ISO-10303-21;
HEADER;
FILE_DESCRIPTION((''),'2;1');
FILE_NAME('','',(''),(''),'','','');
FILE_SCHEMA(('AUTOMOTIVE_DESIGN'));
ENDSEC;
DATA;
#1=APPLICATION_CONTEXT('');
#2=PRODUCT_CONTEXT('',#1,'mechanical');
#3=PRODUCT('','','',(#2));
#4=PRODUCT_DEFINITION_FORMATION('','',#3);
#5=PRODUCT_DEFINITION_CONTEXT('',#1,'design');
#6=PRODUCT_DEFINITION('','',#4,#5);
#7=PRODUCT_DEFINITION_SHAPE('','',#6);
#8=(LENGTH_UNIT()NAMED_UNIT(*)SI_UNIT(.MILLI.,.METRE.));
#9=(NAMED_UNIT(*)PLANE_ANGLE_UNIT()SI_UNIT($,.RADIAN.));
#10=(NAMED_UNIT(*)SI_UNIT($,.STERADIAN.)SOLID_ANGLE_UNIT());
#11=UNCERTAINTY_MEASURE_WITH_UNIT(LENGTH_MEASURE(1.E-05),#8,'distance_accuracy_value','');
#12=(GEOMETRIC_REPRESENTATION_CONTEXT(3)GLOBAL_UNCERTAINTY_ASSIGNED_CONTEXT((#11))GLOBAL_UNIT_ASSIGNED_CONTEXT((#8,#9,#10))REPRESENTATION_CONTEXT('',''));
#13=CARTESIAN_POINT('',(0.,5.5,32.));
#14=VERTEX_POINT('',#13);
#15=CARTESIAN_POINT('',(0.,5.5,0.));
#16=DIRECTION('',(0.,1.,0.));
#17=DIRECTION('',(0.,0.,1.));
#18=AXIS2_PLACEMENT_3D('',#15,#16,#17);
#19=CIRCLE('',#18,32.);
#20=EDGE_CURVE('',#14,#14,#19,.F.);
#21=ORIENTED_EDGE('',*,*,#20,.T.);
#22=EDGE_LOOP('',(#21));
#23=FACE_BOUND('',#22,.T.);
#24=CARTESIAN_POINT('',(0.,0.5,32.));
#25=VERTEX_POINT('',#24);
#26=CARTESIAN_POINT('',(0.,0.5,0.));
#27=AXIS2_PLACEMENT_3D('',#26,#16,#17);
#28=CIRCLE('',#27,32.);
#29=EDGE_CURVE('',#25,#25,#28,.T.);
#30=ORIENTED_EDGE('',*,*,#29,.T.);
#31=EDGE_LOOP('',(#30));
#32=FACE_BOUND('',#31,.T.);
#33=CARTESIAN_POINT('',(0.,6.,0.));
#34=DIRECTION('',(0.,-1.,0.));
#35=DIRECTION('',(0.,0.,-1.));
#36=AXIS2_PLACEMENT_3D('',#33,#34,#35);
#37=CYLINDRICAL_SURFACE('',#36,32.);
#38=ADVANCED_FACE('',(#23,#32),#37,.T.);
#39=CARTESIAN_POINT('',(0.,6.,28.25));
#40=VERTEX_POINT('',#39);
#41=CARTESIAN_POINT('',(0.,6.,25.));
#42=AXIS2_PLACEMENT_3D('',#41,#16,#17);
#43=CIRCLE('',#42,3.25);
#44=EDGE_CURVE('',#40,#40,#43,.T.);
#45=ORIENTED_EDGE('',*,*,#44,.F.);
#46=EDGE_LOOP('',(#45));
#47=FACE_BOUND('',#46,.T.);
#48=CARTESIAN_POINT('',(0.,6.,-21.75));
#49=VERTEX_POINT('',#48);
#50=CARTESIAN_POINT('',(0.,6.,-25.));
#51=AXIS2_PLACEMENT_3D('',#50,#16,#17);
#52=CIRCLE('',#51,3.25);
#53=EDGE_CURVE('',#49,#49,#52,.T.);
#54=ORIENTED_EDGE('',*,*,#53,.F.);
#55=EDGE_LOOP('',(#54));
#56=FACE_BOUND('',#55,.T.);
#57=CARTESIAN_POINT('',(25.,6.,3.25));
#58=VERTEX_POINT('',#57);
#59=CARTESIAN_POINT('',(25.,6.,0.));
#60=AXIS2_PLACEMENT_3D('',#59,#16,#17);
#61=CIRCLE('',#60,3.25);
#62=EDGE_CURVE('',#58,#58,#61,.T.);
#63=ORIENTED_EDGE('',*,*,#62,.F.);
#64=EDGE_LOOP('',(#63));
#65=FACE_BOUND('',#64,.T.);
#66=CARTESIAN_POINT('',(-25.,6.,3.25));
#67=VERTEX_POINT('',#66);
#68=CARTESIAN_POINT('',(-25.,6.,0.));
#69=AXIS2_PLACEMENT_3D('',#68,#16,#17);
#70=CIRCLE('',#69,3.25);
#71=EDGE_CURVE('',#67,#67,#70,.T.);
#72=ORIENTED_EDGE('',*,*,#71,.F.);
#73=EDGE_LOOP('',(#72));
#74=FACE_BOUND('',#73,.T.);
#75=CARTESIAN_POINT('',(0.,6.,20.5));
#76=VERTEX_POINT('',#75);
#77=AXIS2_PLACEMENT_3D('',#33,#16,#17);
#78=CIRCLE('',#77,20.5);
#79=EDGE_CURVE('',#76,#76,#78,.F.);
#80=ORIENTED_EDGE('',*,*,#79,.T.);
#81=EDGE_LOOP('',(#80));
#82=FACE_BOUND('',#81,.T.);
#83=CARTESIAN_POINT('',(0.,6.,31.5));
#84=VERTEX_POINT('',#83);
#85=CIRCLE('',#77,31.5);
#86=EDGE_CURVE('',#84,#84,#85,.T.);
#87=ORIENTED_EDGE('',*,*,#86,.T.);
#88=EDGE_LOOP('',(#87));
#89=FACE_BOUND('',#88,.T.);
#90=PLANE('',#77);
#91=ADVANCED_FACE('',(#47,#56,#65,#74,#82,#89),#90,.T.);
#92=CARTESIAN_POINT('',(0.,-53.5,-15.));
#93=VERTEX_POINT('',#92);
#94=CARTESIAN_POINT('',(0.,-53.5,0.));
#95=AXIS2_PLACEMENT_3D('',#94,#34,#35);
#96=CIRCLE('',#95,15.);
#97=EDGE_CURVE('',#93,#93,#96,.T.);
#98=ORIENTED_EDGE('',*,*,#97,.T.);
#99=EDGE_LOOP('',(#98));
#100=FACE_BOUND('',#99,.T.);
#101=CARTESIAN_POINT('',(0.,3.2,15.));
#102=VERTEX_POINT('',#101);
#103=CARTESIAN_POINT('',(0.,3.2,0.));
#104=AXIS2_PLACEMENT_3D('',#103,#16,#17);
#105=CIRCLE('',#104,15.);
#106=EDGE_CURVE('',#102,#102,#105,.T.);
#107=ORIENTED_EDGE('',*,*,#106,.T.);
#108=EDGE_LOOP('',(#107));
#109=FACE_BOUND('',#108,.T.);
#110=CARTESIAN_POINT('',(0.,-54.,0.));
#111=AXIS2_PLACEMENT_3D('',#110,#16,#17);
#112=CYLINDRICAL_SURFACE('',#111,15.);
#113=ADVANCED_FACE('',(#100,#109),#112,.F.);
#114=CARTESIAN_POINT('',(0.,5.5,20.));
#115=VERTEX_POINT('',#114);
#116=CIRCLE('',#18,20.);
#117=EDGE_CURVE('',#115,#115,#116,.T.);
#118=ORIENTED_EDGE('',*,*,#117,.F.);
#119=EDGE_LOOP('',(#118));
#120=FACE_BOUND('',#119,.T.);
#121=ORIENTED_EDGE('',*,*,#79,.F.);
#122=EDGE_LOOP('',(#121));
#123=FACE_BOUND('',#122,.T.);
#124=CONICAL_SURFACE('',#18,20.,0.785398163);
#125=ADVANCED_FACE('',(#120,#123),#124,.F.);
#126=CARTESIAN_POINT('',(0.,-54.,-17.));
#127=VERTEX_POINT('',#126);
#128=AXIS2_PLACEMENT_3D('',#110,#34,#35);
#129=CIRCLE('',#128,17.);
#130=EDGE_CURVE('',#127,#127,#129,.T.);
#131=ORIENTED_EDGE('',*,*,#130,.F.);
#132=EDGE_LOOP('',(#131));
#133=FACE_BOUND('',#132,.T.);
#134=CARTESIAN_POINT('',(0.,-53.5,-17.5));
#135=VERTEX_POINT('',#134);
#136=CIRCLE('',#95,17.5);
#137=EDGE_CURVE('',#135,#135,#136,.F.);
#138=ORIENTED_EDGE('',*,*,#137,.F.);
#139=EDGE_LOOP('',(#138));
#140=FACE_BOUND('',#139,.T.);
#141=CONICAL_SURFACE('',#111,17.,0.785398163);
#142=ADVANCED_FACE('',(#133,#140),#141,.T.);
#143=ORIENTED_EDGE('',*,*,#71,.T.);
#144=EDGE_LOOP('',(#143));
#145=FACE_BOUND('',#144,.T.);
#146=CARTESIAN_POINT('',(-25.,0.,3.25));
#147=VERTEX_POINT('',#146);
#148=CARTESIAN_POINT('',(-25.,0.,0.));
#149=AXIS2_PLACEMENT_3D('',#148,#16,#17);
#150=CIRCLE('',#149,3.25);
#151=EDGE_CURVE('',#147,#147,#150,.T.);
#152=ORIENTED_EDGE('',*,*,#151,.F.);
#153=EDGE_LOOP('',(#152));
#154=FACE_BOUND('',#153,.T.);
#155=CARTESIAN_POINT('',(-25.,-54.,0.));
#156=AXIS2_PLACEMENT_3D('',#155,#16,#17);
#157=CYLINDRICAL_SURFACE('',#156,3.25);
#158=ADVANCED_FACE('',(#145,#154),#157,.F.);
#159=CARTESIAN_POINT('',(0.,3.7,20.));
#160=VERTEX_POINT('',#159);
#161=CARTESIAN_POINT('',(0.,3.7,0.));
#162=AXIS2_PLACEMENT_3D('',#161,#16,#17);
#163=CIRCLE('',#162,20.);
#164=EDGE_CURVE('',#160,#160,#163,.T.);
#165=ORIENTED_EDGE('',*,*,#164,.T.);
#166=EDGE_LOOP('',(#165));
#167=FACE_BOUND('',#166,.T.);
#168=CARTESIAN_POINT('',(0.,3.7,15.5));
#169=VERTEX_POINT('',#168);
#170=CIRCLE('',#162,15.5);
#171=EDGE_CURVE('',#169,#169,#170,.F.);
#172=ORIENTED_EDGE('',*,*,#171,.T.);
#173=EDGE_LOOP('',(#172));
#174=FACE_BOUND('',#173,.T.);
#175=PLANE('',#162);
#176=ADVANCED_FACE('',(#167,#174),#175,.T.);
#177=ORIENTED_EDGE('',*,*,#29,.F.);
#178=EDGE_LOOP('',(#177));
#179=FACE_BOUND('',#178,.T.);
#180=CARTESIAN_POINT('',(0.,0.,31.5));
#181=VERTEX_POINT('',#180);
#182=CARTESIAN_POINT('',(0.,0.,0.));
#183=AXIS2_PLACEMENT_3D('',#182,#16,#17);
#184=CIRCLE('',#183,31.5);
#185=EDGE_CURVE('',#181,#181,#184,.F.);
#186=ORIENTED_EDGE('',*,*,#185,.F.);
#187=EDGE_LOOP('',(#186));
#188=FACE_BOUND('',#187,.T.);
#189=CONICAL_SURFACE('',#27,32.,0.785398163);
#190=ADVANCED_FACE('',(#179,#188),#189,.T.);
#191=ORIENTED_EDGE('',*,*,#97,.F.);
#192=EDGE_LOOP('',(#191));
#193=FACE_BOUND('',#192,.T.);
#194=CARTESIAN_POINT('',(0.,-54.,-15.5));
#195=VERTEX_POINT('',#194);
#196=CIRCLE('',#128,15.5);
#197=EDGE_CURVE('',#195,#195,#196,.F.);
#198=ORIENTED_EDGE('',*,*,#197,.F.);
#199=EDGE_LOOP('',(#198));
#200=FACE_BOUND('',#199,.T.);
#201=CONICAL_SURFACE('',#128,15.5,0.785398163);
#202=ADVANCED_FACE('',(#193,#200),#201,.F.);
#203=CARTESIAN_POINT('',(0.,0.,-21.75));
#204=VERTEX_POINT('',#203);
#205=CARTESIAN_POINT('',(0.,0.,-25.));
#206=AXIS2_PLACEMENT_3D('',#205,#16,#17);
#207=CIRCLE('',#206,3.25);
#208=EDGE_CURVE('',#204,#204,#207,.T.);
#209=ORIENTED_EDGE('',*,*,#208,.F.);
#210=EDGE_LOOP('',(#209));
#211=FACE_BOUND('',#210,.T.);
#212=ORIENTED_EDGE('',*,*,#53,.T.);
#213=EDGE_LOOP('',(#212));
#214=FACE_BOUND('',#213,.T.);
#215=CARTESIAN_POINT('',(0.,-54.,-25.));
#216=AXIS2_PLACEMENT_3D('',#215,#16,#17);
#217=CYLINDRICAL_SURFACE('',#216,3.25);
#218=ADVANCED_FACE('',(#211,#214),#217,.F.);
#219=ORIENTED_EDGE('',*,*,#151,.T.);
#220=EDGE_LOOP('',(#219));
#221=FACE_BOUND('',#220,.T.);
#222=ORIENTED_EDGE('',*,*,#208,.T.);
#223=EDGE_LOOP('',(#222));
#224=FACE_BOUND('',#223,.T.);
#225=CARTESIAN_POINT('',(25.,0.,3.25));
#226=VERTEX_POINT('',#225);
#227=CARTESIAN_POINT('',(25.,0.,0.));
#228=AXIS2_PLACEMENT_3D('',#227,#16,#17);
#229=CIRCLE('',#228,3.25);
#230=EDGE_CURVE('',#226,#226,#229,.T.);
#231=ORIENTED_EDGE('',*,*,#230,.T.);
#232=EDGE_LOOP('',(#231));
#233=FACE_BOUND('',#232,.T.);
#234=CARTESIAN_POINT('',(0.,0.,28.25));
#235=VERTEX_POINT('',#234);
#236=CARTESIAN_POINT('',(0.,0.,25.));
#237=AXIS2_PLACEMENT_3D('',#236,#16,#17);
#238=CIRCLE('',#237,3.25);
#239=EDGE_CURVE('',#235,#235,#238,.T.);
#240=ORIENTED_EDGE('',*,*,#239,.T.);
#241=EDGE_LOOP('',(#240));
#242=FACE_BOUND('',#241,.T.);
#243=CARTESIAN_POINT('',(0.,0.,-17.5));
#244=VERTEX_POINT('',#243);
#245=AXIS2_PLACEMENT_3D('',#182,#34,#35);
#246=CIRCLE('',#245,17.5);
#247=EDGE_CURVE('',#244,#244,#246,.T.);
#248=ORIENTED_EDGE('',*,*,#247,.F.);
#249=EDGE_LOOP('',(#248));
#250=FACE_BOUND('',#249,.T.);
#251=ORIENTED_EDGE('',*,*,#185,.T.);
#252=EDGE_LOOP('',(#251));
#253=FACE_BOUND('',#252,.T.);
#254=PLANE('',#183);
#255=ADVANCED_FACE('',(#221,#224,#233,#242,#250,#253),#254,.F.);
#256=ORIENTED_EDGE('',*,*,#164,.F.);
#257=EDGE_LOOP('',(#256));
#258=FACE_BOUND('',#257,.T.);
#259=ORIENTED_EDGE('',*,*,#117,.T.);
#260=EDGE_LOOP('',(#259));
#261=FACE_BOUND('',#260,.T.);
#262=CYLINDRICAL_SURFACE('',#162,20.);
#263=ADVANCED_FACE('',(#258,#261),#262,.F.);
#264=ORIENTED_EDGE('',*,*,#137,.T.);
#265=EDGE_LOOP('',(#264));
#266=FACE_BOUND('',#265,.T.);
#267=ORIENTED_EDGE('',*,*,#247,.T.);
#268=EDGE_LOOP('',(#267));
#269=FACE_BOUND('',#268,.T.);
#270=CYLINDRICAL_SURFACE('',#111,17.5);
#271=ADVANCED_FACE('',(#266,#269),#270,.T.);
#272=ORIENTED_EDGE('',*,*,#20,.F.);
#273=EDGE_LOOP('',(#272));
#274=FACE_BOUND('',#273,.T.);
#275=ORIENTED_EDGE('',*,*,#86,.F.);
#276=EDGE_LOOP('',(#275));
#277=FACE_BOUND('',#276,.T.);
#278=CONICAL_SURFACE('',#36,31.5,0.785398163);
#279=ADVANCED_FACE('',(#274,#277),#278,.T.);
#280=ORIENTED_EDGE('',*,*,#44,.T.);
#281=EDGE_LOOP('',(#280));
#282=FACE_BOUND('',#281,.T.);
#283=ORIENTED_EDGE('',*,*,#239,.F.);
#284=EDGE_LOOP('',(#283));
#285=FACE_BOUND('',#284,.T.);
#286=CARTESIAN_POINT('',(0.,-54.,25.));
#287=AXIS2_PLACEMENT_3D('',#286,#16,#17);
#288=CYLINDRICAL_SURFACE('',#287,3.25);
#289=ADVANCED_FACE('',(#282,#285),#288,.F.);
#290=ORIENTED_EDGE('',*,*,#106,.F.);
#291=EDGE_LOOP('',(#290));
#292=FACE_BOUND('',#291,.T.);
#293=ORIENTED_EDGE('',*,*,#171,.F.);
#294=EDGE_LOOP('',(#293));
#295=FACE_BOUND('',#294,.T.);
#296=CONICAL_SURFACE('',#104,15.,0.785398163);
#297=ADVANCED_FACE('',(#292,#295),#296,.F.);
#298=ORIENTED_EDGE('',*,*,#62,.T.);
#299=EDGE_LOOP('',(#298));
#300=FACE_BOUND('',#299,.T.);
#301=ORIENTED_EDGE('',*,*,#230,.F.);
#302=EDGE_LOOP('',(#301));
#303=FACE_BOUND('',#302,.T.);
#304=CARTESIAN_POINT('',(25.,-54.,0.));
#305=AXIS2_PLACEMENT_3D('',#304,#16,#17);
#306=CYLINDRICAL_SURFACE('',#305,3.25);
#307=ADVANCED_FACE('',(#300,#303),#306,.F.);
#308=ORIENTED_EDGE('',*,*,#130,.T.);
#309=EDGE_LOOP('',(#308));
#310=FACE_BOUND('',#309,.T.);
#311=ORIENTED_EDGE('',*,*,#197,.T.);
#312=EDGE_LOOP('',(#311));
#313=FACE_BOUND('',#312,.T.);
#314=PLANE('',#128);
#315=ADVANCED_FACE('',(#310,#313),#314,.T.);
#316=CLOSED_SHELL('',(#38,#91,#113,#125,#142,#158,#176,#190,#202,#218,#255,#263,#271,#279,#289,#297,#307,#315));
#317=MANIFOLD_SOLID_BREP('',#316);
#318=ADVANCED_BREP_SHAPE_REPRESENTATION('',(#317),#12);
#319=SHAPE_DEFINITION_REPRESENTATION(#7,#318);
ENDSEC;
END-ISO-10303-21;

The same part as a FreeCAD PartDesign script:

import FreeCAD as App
import Part
import Sketcher


def edges_at(feature, points):
    """Names of the edges that pass closest to the given points."""
    edges = feature.Shape.Edges
    near = lambda p: min(range(len(edges)), key=lambda i: edges[i].distToShape(Part.Vertex(*p))[0])
    return sorted({f"Edge{near(p) + 1}" for p in points})

doc = App.newDocument("Part")
body = doc.addObject("PartDesign::Body", "Body")

sketch1 = doc.addObject("Sketcher::SketchObject", "Sketch")
body.addObject(sketch1)
sketch1.AttachmentSupport = (doc.XZ_Plane, [""])
sketch1.MapMode = "FlatFace"
sketch1.addGeometry(Part.Circle(App.Vector(0, 0, 0), App.Vector(0, 0, 1), 32), False)
sketch1.addConstraint([
    Sketcher.Constraint("Coincident", 0, 3, -1, 1),
    Sketcher.Constraint("Diameter", 0, 64.0),
])
pad1 = doc.addObject("PartDesign::Pad", "Pad")
body.addObject(pad1)
pad1.Profile = sketch1
pad1.Length = 6
pad1.Reversed = True

sketch2 = doc.addObject("Sketcher::SketchObject", "Sketch001")
body.addObject(sketch2)
sketch2.AttachmentSupport = (doc.XZ_Plane, [""])
sketch2.MapMode = "FlatFace"
sketch2.addGeometry(Part.Circle(App.Vector(0, 0, 0), App.Vector(0, 0, 1), 18), False)
sketch2.addConstraint([
    Sketcher.Constraint("Coincident", 0, 3, -1, 1),
    Sketcher.Constraint("Diameter", 0, 35.0),
])
pad2 = doc.addObject("PartDesign::Pad", "Pad001")
body.addObject(pad2)
pad2.Profile = sketch2
pad2.Length = 54

sketch3 = doc.addObject("Sketcher::SketchObject", "Sketch002")
body.addObject(sketch3)
sketch3.AttachmentSupport = (doc.XZ_Plane, [""])
sketch3.MapMode = "FlatFace"
sketch3.AttachmentOffset = App.Placement(App.Vector(0, 0, -6), App.Rotation())
sketch3.addGeometry(Part.Circle(App.Vector(0, 0, 0), App.Vector(0, 0, 1), 20), False)
sketch3.addConstraint([
    Sketcher.Constraint("Coincident", 0, 3, -1, 1),
    Sketcher.Constraint("Diameter", 0, 40.0),
])
pocket1 = doc.addObject("PartDesign::Pocket", "Pocket")
body.addObject(pocket1)
pocket1.Profile = sketch3
pocket1.Length = 2.3
pocket1.Reversed = True

sketch4 = doc.addObject("Sketcher::SketchObject", "Sketch003")
body.addObject(sketch4)
sketch4.AttachmentSupport = (doc.XZ_Plane, [""])
sketch4.MapMode = "FlatFace"
sketch4.AttachmentOffset = App.Placement(App.Vector(0, 0, -3.7), App.Rotation())
sketch4.addGeometry(Part.Circle(App.Vector(0, 0, 0), App.Vector(0, 0, 1), 15), False)
sketch4.addConstraint([
    Sketcher.Constraint("Coincident", 0, 3, -1, 1),
    Sketcher.Constraint("Diameter", 0, 30.0),
])
pocket2 = doc.addObject("PartDesign::Pocket", "Pocket001")
body.addObject(pocket2)
pocket2.Profile = sketch4
pocket2.Type = "ThroughAll"
pocket2.Reversed = True

sketch5 = doc.addObject("Sketcher::SketchObject", "Sketch004")
body.addObject(sketch5)
sketch5.AttachmentSupport = (doc.XZ_Plane, [""])
sketch5.MapMode = "FlatFace"
sketch5.AttachmentOffset = App.Placement(App.Vector(0, 0, -6), App.Rotation())
sketch5.addGeometry([
    Part.Circle(App.Vector(0, -25, 0), App.Vector(0, 0, 1), 3.2),
    Part.Circle(App.Vector(25, 0, 0), App.Vector(0, 0, 1), 3.2),
    Part.Circle(App.Vector(0, 25, 0), App.Vector(0, 0, 1), 3.2),
    Part.Circle(App.Vector(-25, 0, 0), App.Vector(0, 0, 1), 3.2),
], False)
sketch5.addConstraint([
    Sketcher.Constraint("Equal", 0, 1),
    Sketcher.Constraint("Equal", 1, 2),
    Sketcher.Constraint("Equal", 2, 3),
    Sketcher.Constraint("Symmetric", 0, 3, 2, 3, -1, 1),
    Sketcher.Constraint("Symmetric", 1, 3, 3, 3, -1, 1),
    Sketcher.Constraint("PointOnObject", 0, 3, -2),
    Sketcher.Constraint("PointOnObject", 1, 3, -1),
    Sketcher.Constraint("Diameter", 0, 6.5),
    Sketcher.Constraint("DistanceY", 0, 3, -1, 1, 25.0),
    Sketcher.Constraint("DistanceX", -1, 1, 1, 3, 25.0),
])
pocket3 = doc.addObject("PartDesign::Pocket", "Pocket002")
body.addObject(pocket3)
pocket3.Profile = sketch5
pocket3.Type = "ThroughAll"
pocket3.Reversed = True
doc.recompute()

chamfer = doc.addObject("PartDesign::Chamfer", "Chamfer")
body.addObject(chamfer)
chamfer.Base = (pocket3, edges_at(pocket3, [
    (0, 6, -20),
    (0, -54, -15),
    (0, 3.7, -15),
    (0, 0, -32),
    (0, 6, -32),
    (0, -54, 17.5),
]))
chamfer.Size = 0.5

doc.recompute()
